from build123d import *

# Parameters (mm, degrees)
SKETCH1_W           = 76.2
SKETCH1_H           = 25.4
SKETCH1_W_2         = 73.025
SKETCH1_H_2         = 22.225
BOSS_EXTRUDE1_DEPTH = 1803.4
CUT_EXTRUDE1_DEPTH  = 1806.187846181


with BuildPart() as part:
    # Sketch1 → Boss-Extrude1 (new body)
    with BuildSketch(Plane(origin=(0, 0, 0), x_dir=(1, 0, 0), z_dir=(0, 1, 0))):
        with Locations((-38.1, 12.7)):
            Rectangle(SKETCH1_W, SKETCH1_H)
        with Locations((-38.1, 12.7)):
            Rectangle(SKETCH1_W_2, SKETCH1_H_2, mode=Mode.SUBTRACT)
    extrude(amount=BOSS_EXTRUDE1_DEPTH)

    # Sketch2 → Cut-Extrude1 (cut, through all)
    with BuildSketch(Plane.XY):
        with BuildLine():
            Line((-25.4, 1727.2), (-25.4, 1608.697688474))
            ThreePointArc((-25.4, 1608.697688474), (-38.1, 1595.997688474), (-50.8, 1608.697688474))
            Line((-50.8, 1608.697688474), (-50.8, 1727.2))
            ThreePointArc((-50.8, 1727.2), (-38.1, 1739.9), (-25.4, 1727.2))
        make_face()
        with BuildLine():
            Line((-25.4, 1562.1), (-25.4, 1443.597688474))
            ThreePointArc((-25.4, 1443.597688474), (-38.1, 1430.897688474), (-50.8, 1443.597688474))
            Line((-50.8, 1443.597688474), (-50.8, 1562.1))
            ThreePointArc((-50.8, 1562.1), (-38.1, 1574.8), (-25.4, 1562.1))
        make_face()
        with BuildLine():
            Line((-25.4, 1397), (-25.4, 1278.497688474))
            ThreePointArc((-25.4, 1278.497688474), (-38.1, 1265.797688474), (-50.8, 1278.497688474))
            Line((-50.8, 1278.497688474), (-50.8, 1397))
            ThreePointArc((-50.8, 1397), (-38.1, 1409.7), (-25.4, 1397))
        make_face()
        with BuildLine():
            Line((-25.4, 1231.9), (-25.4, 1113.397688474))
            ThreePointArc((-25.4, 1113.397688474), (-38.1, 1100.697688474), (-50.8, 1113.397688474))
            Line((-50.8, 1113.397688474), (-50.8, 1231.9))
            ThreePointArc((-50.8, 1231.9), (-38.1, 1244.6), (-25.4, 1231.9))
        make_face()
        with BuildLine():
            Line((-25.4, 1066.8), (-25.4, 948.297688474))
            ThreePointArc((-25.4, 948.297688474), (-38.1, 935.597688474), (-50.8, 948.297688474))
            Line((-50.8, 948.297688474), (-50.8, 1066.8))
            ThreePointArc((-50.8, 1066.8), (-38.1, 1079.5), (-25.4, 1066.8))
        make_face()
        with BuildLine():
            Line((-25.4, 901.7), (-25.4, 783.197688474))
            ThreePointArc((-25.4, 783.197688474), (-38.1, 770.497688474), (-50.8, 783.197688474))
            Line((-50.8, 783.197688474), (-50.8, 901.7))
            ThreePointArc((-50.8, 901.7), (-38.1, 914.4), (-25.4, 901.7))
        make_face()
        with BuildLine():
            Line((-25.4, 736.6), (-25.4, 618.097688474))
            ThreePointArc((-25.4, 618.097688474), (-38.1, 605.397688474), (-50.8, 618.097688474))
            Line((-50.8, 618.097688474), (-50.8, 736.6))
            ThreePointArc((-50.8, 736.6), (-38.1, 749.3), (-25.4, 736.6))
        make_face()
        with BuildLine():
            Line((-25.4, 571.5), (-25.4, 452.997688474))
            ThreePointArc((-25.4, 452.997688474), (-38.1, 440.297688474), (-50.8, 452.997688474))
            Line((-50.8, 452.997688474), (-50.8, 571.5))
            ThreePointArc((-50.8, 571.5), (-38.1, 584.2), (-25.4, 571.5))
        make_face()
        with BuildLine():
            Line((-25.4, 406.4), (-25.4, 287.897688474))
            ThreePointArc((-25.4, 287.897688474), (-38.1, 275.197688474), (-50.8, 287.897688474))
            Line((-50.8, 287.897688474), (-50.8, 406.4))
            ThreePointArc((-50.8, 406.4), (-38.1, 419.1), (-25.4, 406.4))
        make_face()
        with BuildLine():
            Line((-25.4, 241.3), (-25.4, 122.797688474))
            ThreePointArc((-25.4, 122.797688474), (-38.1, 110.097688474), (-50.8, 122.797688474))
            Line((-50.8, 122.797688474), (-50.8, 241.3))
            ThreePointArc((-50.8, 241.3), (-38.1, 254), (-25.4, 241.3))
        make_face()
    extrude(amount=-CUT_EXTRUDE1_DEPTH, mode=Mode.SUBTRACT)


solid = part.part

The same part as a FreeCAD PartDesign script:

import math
import FreeCAD as App
import Part
import Sketcher

V = App.Vector
Q = App.Units.Quantity


def add_polygon(sketch, points):
    """Adds a closed chain of lines whose ends are joined by coincident constraints."""
    first, n = sketch.GeometryCount, len(points)
    for a, b in zip(points, points[1:] + points[:1]):
        sketch.addGeometry(Part.LineSegment(App.Vector(*a, 0), App.Vector(*b, 0)), False)
    for i in range(n):
        sketch.addConstraint(Sketcher.Constraint("Coincident", first + i, 2, first + (i + 1) % n, 1))

doc = App.newDocument("Part")
params = doc.addObject("Spreadsheet::Sheet", "Params")
for row, (alias, value) in enumerate([
    ("sketch1_width", "3 in"),
    ("sketch1_height", "1 in"),
    ("sketch1_width2", "2.875 in"),
    ("sketch1_height2", "0.875 in"),
    ("pad1_length", "71 in"),
    ("sketch2_radius", "0.5 in"),
], start=1):
    params.set(f"A{row}", alias)
    params.set(f"B{row}", "=" + value)
    params.setAlias(f"B{row}", alias)

body = doc.addObject("PartDesign::Body", "Body")

# Sketch on XZ plane
sketch1 = body.newObject("Sketcher::SketchObject", "Sketch")
sketch1.AttachmentSupport = (doc.getObject("XZ_Plane"), [""])
sketch1.MapMode = "FlatFace"
add_polygon(sketch1, [(-76.2, -25.4), (-76.2, 0), (0, 0), (0, -25.4)])  # lines 0-3
add_polygon(sketch1, [(-1.5875, -1.5875), (-74.6125, -1.5875), (-74.6125, -23.8125), (-1.5875, -23.8125)])  # lines 4-7
sketch1.addConstraint([
    Sketcher.Constraint("Vertical", 0),
    Sketcher.Constraint("Horizontal", 1),
    Sketcher.Constraint("Vertical", 2),
    Sketcher.Constraint("Horizontal", 3),
    Sketcher.Constraint("Horizontal", 4),
    Sketcher.Constraint("Vertical", 5),
    Sketcher.Constraint("Horizontal", 6),
    Sketcher.Constraint("Vertical", 7),
    Sketcher.Constraint("Coincident", 1, 2, -1, 1),
    Sketcher.Constraint("DistanceX", 1, 1, 1, 2, Q("3 in")),
    Sketcher.Constraint("DistanceY", 0, 1, 0, 2, Q("1 in")),
    Sketcher.Constraint("DistanceX", 4, 2, 4, 1, Q("2.875 in")),
    Sketcher.Constraint("DistanceY", 5, 2, 5, 1, Q("0.875 in")),
    Sketcher.Constraint("DistanceX", 4, 2, -1, 1, Q("2.9375 in")),
    Sketcher.Constraint("DistanceY", 4, 2, -1, 1, Q("0.0625 in")),
])
sketch1.setExpression("Constraints[17]", "Params.sketch1_width")
sketch1.setExpression("Constraints[18]", "Params.sketch1_height")
sketch1.setExpression("Constraints[19]", "Params.sketch1_width2")
sketch1.setExpression("Constraints[20]", "Params.sketch1_height2")
pad1 = body.newObject("PartDesign::Pad", "Pad")
pad1.Profile = sketch1
pad1.setExpression("Length", "Params.pad1_length")
pad1.Reversed = True

# Sketch on XY plane
sketch2 = body.newObject("Sketcher::SketchObject", "Sketch001")
sketch2.AttachmentSupport = (doc.getObject("XY_Plane"), [""])
sketch2.MapMode = "FlatFace"
sketch2.addGeometry([
    Part.LineSegment(V(-25.4, 1608.697688, 0), V(-25.4, 1727.2, 0)),  # 0
    Part.ArcOfCircle(Part.Circle(V(-38.1, 1727.2, 0), V(0, 0, 1), 12.7), math.radians(0), math.radians(180)),  # 1
    Part.LineSegment(V(-50.8, 1727.2, 0), V(-50.8, 1608.697688, 0)),  # 2
    Part.ArcOfCircle(Part.Circle(V(-38.1, 1608.697688, 0), V(0, 0, 1), 12.7), math.radians(180), math.radians(360)),  # 3
    Part.LineSegment(V(-25.4, 1443.597688, 0), V(-25.4, 1562.1, 0)),  # 4
    Part.ArcOfCircle(Part.Circle(V(-38.1, 1562.1, 0), V(0, 0, 1), 12.7), math.radians(0), math.radians(180)),  # 5
    Part.LineSegment(V(-50.8, 1562.1, 0), V(-50.8, 1443.597688, 0)),  # 6
    Part.ArcOfCircle(Part.Circle(V(-38.1, 1443.597688, 0), V(0, 0, 1), 12.7), math.radians(180), math.radians(360)),  # 7
    Part.LineSegment(V(-25.4, 1278.497688, 0), V(-25.4, 1397, 0)),  # 8
    Part.ArcOfCircle(Part.Circle(V(-38.1, 1397, 0), V(0, 0, 1), 12.7), math.radians(0), math.radians(180)),  # 9
    Part.LineSegment(V(-50.8, 1397, 0), V(-50.8, 1278.497688, 0)),  # 10
    Part.ArcOfCircle(Part.Circle(V(-38.1, 1278.497688, 0), V(0, 0, 1), 12.7), math.radians(180), math.radians(360)),  # 11
    Part.LineSegment(V(-25.4, 1113.397688, 0), V(-25.4, 1231.9, 0)),  # 12
    Part.ArcOfCircle(Part.Circle(V(-38.1, 1231.9, 0), V(0, 0, 1), 12.7), math.radians(0), math.radians(180)),  # 13
    Part.LineSegment(V(-50.8, 1231.9, 0), V(-50.8, 1113.397688, 0)),  # 14
    Part.ArcOfCircle(Part.Circle(V(-38.1, 1113.397688, 0), V(0, 0, 1), 12.7), math.radians(180), math.radians(360)),  # 15
    Part.LineSegment(V(-25.4, 948.297688, 0), V(-25.4, 1066.8, 0)),  # 16
    Part.ArcOfCircle(Part.Circle(V(-38.1, 1066.8, 0), V(0, 0, 1), 12.7), math.radians(0), math.radians(180)),  # 17
    Part.LineSegment(V(-50.8, 1066.8, 0), V(-50.8, 948.297688, 0)),  # 18
    Part.ArcOfCircle(Part.Circle(V(-38.1, 948.297688, 0), V(0, 0, 1), 12.7), math.radians(180), math.radians(360)),  # 19
    Part.LineSegment(V(-25.4, 783.197688, 0), V(-25.4, 901.7, 0)),  # 20
    Part.ArcOfCircle(Part.Circle(V(-38.1, 901.7, 0), V(0, 0, 1), 12.7), math.radians(0), math.radians(180)),  # 21
    Part.LineSegment(V(-50.8, 901.7, 0), V(-50.8, 783.197688, 0)),  # 22
    Part.ArcOfCircle(Part.Circle(V(-38.1, 783.197688, 0), V(0, 0, 1), 12.7), math.radians(180), math.radians(360)),  # 23
    Part.LineSegment(V(-25.4, 618.097688, 0), V(-25.4, 736.6, 0)),  # 24
    Part.ArcOfCircle(Part.Circle(V(-38.1, 736.6, 0), V(0, 0, 1), 12.7), math.radians(0), math.radians(180)),  # 25
    Part.LineSegment(V(-50.8, 736.6, 0), V(-50.8, 618.097688, 0)),  # 26
    Part.ArcOfCircle(Part.Circle(V(-38.1, 618.097688, 0), V(0, 0, 1), 12.7), math.radians(180), math.radians(360)),  # 27
    Part.LineSegment(V(-25.4, 452.997688, 0), V(-25.4, 571.5, 0)),  # 28
    Part.ArcOfCircle(Part.Circle(V(-38.1, 571.5, 0), V(0, 0, 1), 12.7), math.radians(0), math.radians(180)),  # 29
    Part.LineSegment(V(-50.8, 571.5, 0), V(-50.8, 452.997688, 0)),  # 30
    Part.ArcOfCircle(Part.Circle(V(-38.1, 452.997688, 0), V(0, 0, 1), 12.7), math.radians(180), math.radians(360)),  # 31
    Part.LineSegment(V(-25.4, 287.897688, 0), V(-25.4, 406.4, 0)),  # 32
    Part.ArcOfCircle(Part.Circle(V(-38.1, 406.4, 0), V(0, 0, 1), 12.7), math.radians(0), math.radians(180)),  # 33
    Part.LineSegment(V(-50.8, 406.4, 0), V(-50.8, 287.897688, 0)),  # 34
    Part.ArcOfCircle(Part.Circle(V(-38.1, 287.897688, 0), V(0, 0, 1), 12.7), math.radians(180), math.radians(360)),  # 35
    Part.LineSegment(V(-25.4, 122.797688, 0), V(-25.4, 241.3, 0)),  # 36
    Part.ArcOfCircle(Part.Circle(V(-38.1, 241.3, 0), V(0, 0, 1), 12.7), math.radians(0), math.radians(180)),  # 37
    Part.LineSegment(V(-50.8, 241.3, 0), V(-50.8, 122.797688, 0)),  # 38
    Part.ArcOfCircle(Part.Circle(V(-38.1, 122.797688, 0), V(0, 0, 1), 12.7), math.radians(180), math.radians(360)),  # 39
], False)
sketch2.addConstraint([
    Sketcher.Constraint("Tangent", 0, 2, 1, 1),
    Sketcher.Constraint("Tangent", 1, 2, 2, 1),
    Sketcher.Constraint("Tangent", 2, 2, 3, 1),
    Sketcher.Constraint("Tangent", 3, 2, 0, 1),
    Sketcher.Constraint("Tangent", 4, 2, 5, 1),
    Sketcher.Constraint("Tangent", 5, 2, 6, 1),
    Sketcher.Constraint("Tangent", 6, 2, 7, 1),
    Sketcher.Constraint("Tangent", 7, 2, 4, 1),
    Sketcher.Constraint("Tangent", 8, 2, 9, 1),
    Sketcher.Constraint("Tangent", 9, 2, 10, 1),
    Sketcher.Constraint("Tangent", 10, 2, 11, 1),
    Sketcher.Constraint("Tangent", 11, 2, 8, 1),
    Sketcher.Constraint("Tangent", 12, 2, 13, 1),
    Sketcher.Constraint("Tangent", 13, 2, 14, 1),
    Sketcher.Constraint("Tangent", 14, 2, 15, 1),
    Sketcher.Constraint("Tangent", 15, 2, 12, 1),
    Sketcher.Constraint("Tangent", 16, 2, 17, 1),
    Sketcher.Constraint("Tangent", 17, 2, 18, 1),
    Sketcher.Constraint("Tangent", 18, 2, 19, 1),
    Sketcher.Constraint("Tangent", 19, 2, 16, 1),
    Sketcher.Constraint("Tangent", 20, 2, 21, 1),
    Sketcher.Constraint("Tangent", 21, 2, 22, 1),
    Sketcher.Constraint("Tangent", 22, 2, 23, 1),
    Sketcher.Constraint("Tangent", 23, 2, 20, 1),
    Sketcher.Constraint("Tangent", 24, 2, 25, 1),
    Sketcher.Constraint("Tangent", 25, 2, 26, 1),
    Sketcher.Constraint("Tangent", 26, 2, 27, 1),
    Sketcher.Constraint("Tangent", 27, 2, 24, 1),
    Sketcher.Constraint("Tangent", 28, 2, 29, 1),
    Sketcher.Constraint("Tangent", 29, 2, 30, 1),
    Sketcher.Constraint("Tangent", 30, 2, 31, 1),
    Sketcher.Constraint("Tangent", 31, 2, 28, 1),
    Sketcher.Constraint("Tangent", 32, 2, 33, 1),
    Sketcher.Constraint("Tangent", 33, 2, 34, 1),
    Sketcher.Constraint("Tangent", 34, 2, 35, 1),
    Sketcher.Constraint("Tangent", 35, 2, 32, 1),
    Sketcher.Constraint("Tangent", 36, 2, 37, 1),
    Sketcher.Constraint("Tangent", 37, 2, 38, 1),
    Sketcher.Constraint("Tangent", 38, 2, 39, 1),
    Sketcher.Constraint("Tangent", 39, 2, 36, 1),
    Sketcher.Constraint("Vertical", 0),
    Sketcher.Constraint("Vertical", 2),
    Sketcher.Constraint("Vertical", 4),
    Sketcher.Constraint("Vertical", 6),
    Sketcher.Constraint("Vertical", 8),
    Sketcher.Constraint("Vertical", 10),
    Sketcher.Constraint("Vertical", 12),
    Sketcher.Constraint("Vertical", 14),
    Sketcher.Constraint("Vertical", 16),
    Sketcher.Constraint("Vertical", 18),
    Sketcher.Constraint("Vertical", 20),
    Sketcher.Constraint("Vertical", 22),
    Sketcher.Constraint("Vertical", 24),
    Sketcher.Constraint("Vertical", 26),
    Sketcher.Constraint("Vertical", 28),
    Sketcher.Constraint("Vertical", 30),
    Sketcher.Constraint("Vertical", 32),
    Sketcher.Constraint("Vertical", 34),
    Sketcher.Constraint("Vertical", 36),
    Sketcher.Constraint("Vertical", 38),
    Sketcher.Constraint("Equal", 3, 5),
    Sketcher.Constraint("Equal", 7, 9),
    Sketcher.Constraint("Equal", 11, 13),
    Sketcher.Constraint("Equal", 15, 17),
    Sketcher.Constraint("Equal", 19, 21),
    Sketcher.Constraint("Equal", 23, 25),
    Sketcher.Constraint("Equal", 27, 29),
    Sketcher.Constraint("Equal", 31, 33),
    Sketcher.Constraint("Equal", 35, 37),
    Sketcher.Constraint("Vertical", 3, 3, 5, 3),
    Sketcher.Constraint("Vertical", 7, 3, 9, 3),
    Sketcher.Constraint("Vertical", 11, 3, 13, 3),
    Sketcher.Constraint("Vertical", 15, 3, 17, 3),
    Sketcher.Constraint("Vertical", 19, 3, 21, 3),
    Sketcher.Constraint("Vertical", 23, 3, 25, 3),
    Sketcher.Constraint("Vertical", 27, 3, 29, 3),
    Sketcher.Constraint("Vertical", 31, 3, 33, 3),
    Sketcher.Constraint("Vertical", 35, 3, 37, 3),
    Sketcher.Constraint("Equal", 2, 4),
    Sketcher.Constraint("Equal", 6, 8),
    Sketcher.Constraint("Equal", 10, 12),
    Sketcher.Constraint("Equal", 14, 16),
    Sketcher.Constraint("Equal", 18, 20),
    Sketcher.Constraint("Equal", 22, 24),
    Sketcher.Constraint("Equal", 26, 28),
    Sketcher.Constraint("Equal", 30, 32),
    Sketcher.Constraint("Equal", 34, 36),
    Sketcher.Constraint("Radius", 1, Q("0.5 in")),
    Sketcher.Constraint("DistanceY", -1, 1, 1, 3, Q("68 in")),
    Sketcher.Constraint("DistanceY", -1, 1, 9, 3, Q("55 in")),
    Sketcher.Constraint("DistanceY", -1, 1, 17, 3, Q("42 in")),
    Sketcher.Constraint("DistanceY", -1, 1, 25, 3, Q("29 in")),
    Sketcher.Constraint("DistanceY", -1, 1, 33, 3, Q("16 in")),
    Sketcher.Constraint("DistanceX", 0, 2, -1, 1, Q("1 in")),
    Sketcher.Constraint("DistanceY", 13, 3, 5, 3, Q("13 in")),
    Sketcher.Constraint("DistanceY", 21, 3, 13, 3, Q("13 in")),
    Sketcher.Constraint("DistanceY", 29, 3, 21, 3, Q("13 in")),
    Sketcher.Constraint("DistanceY", 37, 3, 29, 3, Q("13 in")),
    Sketcher.Constraint("DistanceY", -1, 1, 5, 3, Q("61.5 in")),
    Sketcher.Constraint("DistanceY", 0, 1, 0, 2, 118.502312),
])
sketch2.setExpression("Constraints[87]", "Params.sketch2_radius")
pocket1 = body.newObject("PartDesign::Pocket", "Pocket")
pocket1.Profile = sketch2
pocket1.Type = "ThroughAll"

doc.recompute()
